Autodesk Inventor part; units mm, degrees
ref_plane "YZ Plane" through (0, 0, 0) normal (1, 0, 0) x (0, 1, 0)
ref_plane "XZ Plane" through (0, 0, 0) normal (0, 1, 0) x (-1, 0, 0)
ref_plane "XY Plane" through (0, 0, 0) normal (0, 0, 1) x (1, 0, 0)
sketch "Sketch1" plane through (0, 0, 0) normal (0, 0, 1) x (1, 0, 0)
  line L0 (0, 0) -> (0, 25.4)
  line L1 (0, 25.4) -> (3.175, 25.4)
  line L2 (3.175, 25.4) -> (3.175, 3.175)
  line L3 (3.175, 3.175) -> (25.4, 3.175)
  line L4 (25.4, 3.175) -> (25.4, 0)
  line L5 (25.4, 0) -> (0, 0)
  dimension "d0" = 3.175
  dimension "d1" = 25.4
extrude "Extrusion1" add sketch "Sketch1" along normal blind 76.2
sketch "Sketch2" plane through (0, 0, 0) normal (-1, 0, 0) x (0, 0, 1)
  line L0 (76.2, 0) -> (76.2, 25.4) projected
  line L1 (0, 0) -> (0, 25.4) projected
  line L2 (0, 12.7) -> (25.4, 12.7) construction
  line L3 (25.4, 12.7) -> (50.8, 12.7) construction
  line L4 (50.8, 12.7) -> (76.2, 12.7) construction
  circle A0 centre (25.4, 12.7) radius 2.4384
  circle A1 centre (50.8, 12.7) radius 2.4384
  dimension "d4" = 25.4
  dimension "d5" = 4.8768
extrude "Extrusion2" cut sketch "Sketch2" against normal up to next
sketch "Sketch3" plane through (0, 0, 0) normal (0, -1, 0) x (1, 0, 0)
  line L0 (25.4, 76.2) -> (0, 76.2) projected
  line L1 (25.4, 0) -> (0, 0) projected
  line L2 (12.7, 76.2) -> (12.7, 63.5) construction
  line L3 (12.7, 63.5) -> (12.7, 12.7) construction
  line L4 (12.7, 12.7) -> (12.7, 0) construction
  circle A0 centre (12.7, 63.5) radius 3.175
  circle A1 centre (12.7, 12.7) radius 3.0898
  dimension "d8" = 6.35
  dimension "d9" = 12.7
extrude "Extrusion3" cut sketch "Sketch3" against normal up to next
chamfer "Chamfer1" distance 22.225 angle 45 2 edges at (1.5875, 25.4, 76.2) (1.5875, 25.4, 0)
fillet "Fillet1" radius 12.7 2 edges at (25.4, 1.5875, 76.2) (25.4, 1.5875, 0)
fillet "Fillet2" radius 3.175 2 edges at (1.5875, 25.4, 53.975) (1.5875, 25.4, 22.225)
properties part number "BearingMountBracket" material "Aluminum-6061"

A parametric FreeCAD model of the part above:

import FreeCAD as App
import Part
import Sketcher

V = App.Vector
Q = App.Units.Quantity


def edges_at(feature, points):
    """Names of the edges that pass closest to the given points."""
    edges = feature.Shape.Edges
    near = lambda p: min(range(len(edges)), key=lambda i: edges[i].distToShape(Part.Vertex(*p))[0])
    return sorted({f"Edge{near(p) + 1}" for p in points})


def add_polygon(sketch, points):
    """Adds a closed chain of lines whose ends are joined by coincident constraints."""
    first, n = sketch.GeometryCount, len(points)
    for a, b in zip(points, points[1:] + points[:1]):
        sketch.addGeometry(Part.LineSegment(App.Vector(*a, 0), App.Vector(*b, 0)), False)
    for i in range(n):
        sketch.addConstraint(Sketcher.Constraint("Coincident", first + i, 2, first + (i + 1) % n, 1))

doc = App.newDocument("Part")
body = doc.addObject("PartDesign::Body", "Body")

# Sketch on XY plane
sketch1 = body.newObject("Sketcher::SketchObject", "Sketch")
sketch1.AttachmentSupport = (doc.getObject("XY_Plane"), [""])
sketch1.MapMode = "FlatFace"
add_polygon(sketch1, [(0, 25.4), (0, 0), (25.4, 0), (25.4, 3.2), (3.2, 3.2), (3.2, 25.4)])  # lines 0-5
sketch1.addConstraint(Sketcher.Constraint("Vertical", 0))
sketch1.addConstraint(Sketcher.Constraint("Horizontal", 1))
sketch1.addConstraint(Sketcher.Constraint("Vertical", 2))
sketch1.addConstraint(Sketcher.Constraint("Horizontal", 3))
sketch1.addConstraint(Sketcher.Constraint("Vertical", 4))
sketch1.addConstraint(Sketcher.Constraint("Horizontal", 5))
sketch1.addConstraint(Sketcher.Constraint("Coincident", 0, 2, -1, 1))
sketch1.addConstraint(Sketcher.Constraint("Equal", 1, 0))
sketch1.addConstraint(Sketcher.Constraint("Equal", 5, 2))
sketch1.addConstraint(Sketcher.Constraint("DistanceX", 1, 1, 1, 2, Q("1 in")))
sketch1.addConstraint(Sketcher.Constraint("DistanceX", 5, 2, 5, 1, Q("0.125 in")))
pad1 = body.newObject("PartDesign::Pad", "Pad")
pad1.Profile = sketch1
pad1.Length = Q("3 in")

# Sketch on YZ plane
sketch2 = body.newObject("Sketcher::SketchObject", "Sketch001")
sketch2.AttachmentSupport = (doc.getObject("YZ_Plane"), [""])
sketch2.MapMode = "FlatFace"
sketch2.addGeometry(Part.Circle(V(12.7, 25.4, 0), V(0, 0, 1), 2.4), False)
sketch2.addGeometry(Part.Circle(V(12.7, 50.8, 0), V(0, 0, 1), 2.4), False)
sketch2.addConstraint(Sketcher.Constraint("Equal", 0, 1))
sketch2.addConstraint(Sketcher.Constraint("Vertical", 0, 3, 1, 3))
sketch2.addConstraint(Sketcher.Constraint("Diameter", 0, Q("0.192 in")))
sketch2.addConstraint(Sketcher.Constraint("DistanceY", -1, 1, 0, 3, Q("1 in")))
sketch2.addConstraint(Sketcher.Constraint("DistanceY", 0, 3, 1, 3, Q("1 in")))
sketch2.addConstraint(Sketcher.Constraint("DistanceX", -1, 1, 0, 3, Q("0.5 in")))
pocket1 = body.newObject("PartDesign::Pocket", "Pocket")
pocket1.Profile = sketch2
pocket1.Type = "UpToFirst"
pocket1.Reversed = True

# Sketch on XZ plane
sketch3 = body.newObject("Sketcher::SketchObject", "Sketch002")
sketch3.AttachmentSupport = (doc.getObject("XZ_Plane"), [""])
sketch3.MapMode = "FlatFace"
sketch3.addGeometry(Part.Circle(V(12.7, 63.5, 0), V(0, 0, 1), 3.2), False)
sketch3.addGeometry(Part.Circle(V(12.7, 12.7, 0), V(0, 0, 1), 3.1), False)
sketch3.addConstraint(Sketcher.Constraint("Vertical", 0, 3, 1, 3))
sketch3.addConstraint(Sketcher.Constraint("Diameter", 0, Q("0.25 in")))
sketch3.addConstraint(Sketcher.Constraint("DistanceX", -1, 1, 0, 3, Q("0.5 in")))
sketch3.addConstraint(Sketcher.Constraint("DistanceY", -1, 1, 1, 3, Q("0.5 in")))
sketch3.addConstraint(Sketcher.Constraint("DistanceY", 1, 3, 0, 3, Q("2 in")))
sketch3.addConstraint(Sketcher.Constraint("Diameter", 1, Q("0.2433 in")))
pocket2 = body.newObject("PartDesign::Pocket", "Pocket001")
pocket2.Profile = sketch3
pocket2.Type = "UpToFirst"
doc.recompute()

chamfer = body.newObject("PartDesign::Chamfer", "Chamfer")
chamfer.Base = (pocket2, edges_at(pocket2, [(1.587, 25.4, 76.2), (1.587, 25.4, 0)]))
chamfer.Size = Q("0.875 in")
doc.recompute()

fillet = body.newObject("PartDesign::Fillet", "Fillet")
fillet.Base = (chamfer, edges_at(chamfer, [(25.4, 1.587, 76.2), (25.4, 1.587, 0)]))
fillet.Radius = Q("0.5 in")
doc.recompute()

fillet2 = body.newObject("PartDesign::Fillet", "Fillet001")
fillet2.Base = (fillet, edges_at(fillet, [(1.587, 25.4, 53.975), (1.587, 25.4, 22.225)]))
fillet2.Radius = Q("0.125 in")

doc.recompute()
